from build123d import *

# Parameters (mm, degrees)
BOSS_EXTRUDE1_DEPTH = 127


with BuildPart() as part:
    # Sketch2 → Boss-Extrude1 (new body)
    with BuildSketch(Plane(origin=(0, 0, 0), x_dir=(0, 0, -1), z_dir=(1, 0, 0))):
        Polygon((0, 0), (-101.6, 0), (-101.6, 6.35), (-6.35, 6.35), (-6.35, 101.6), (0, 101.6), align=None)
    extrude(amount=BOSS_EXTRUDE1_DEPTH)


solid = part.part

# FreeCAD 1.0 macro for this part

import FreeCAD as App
import Part
import Sketcher

V = App.Vector
Q = App.Units.Quantity

doc = App.newDocument("Part")
body = doc.addObject("PartDesign::Body", "Body")

# Sketch on YZ plane
sketch1 = doc.addObject("Sketcher::SketchObject", "Sketch")
body.addObject(sketch1)
sketch1.AttachmentSupport = (doc.YZ_Plane, [""])
sketch1.MapMode = "FlatFace"
sketch1.addGeometry([
    Part.LineSegment(V(0, 102, 0), V(0, 0, 0)),  # 0
    Part.LineSegment(V(0, 0, 0), V(102, 0, 0)),  # 1
    Part.LineSegment(V(102, 0, 0), V(102, 6, 0)),  # 2
    Part.LineSegment(V(102, 6, 0), V(6, 6, 0)),  # 3
    Part.LineSegment(V(6, 6, 0), V(6, 102, 0)),  # 4
    Part.LineSegment(V(6, 102, 0), V(0, 102, 0)),  # 5
], False)
sketch1.addConstraint([
    Sketcher.Constraint("Coincident", 0, 2, 1, 1),
    Sketcher.Constraint("Coincident", 1, 2, 2, 1),
    Sketcher.Constraint("Coincident", 2, 2, 3, 1),
    Sketcher.Constraint("Coincident", 3, 2, 4, 1),
    Sketcher.Constraint("Coincident", 4, 2, 5, 1),
    Sketcher.Constraint("Coincident", 5, 2, 0, 1),
    Sketcher.Constraint("Vertical", 0),
    Sketcher.Constraint("Horizontal", 1),
    Sketcher.Constraint("Vertical", 2),
    Sketcher.Constraint("Horizontal", 3),
    Sketcher.Constraint("Vertical", 4),
    Sketcher.Constraint("Horizontal", 5),
    Sketcher.Constraint("Coincident", 0, 2, -1, 1),
    Sketcher.Constraint("Equal", 1, 0),
    Sketcher.Constraint("Equal", 5, 2),
    Sketcher.Constraint("DistanceX", 1, 1, 1, 2, Q("4 in")),
    Sketcher.Constraint("DistanceX", 3, 2, 3, 1, Q("3.75 in")),
])
pad1 = doc.addObject("PartDesign::Pad", "Pad")
body.addObject(pad1)
pad1.Profile = sketch1
pad1.Length = Q("5 in")

doc.recompute()
